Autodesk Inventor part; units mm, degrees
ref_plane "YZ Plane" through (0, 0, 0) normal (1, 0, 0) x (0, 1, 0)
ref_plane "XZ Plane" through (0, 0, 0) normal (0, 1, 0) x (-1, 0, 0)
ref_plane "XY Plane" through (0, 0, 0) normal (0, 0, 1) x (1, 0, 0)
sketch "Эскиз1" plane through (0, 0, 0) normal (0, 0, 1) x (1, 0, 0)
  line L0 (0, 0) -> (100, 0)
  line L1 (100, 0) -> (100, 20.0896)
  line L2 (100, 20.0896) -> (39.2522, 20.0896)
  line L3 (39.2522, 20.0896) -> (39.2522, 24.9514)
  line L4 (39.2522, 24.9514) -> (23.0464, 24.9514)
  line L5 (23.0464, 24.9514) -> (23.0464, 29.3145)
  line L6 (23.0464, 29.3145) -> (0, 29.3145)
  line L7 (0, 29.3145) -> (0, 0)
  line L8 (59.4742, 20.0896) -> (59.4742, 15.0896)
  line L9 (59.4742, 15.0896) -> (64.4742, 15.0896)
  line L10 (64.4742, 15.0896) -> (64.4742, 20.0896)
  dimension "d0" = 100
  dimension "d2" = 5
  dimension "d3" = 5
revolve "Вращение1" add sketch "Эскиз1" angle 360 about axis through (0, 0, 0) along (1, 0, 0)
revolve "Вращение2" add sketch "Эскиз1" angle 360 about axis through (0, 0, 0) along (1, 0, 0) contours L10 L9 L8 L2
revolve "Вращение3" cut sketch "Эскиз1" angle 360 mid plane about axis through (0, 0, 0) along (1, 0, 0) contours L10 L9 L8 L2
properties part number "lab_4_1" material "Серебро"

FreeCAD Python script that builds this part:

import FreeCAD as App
import Part
import Sketcher

V = App.Vector


def add_polygon(sketch, points):
    """Adds a closed chain of lines whose ends are joined by coincident constraints."""
    first, n = sketch.GeometryCount, len(points)
    for a, b in zip(points, points[1:] + points[:1]):
        sketch.addGeometry(Part.LineSegment(App.Vector(*a, 0), App.Vector(*b, 0)), False)
    for i in range(n):
        sketch.addConstraint(Sketcher.Constraint("Coincident", first + i, 2, first + (i + 1) % n, 1))

doc = App.newDocument("Part")
body = doc.addObject("PartDesign::Body", "Body")

sketch1 = doc.addObject("Sketcher::SketchObject", "Sketch")
body.addObject(sketch1)
sketch1.AttachmentSupport = (doc.XY_Plane, [""])
sketch1.MapMode = "FlatFace"
add_polygon(sketch1, [(0, 29.3), (0, 0), (100, 0), (100, 20.1), (39.3, 20.1), (39.3, 25), (23, 25), (23, 29.3)])
sketch1.addConstraint([
    Sketcher.Constraint("Vertical", 0),
    Sketcher.Constraint("Horizontal", 1),
    Sketcher.Constraint("Vertical", 2),
    Sketcher.Constraint("Horizontal", 3),
    Sketcher.Constraint("Vertical", 4),
    Sketcher.Constraint("Horizontal", 5),
    Sketcher.Constraint("Vertical", 6),
    Sketcher.Constraint("Horizontal", 7),
    Sketcher.Constraint("Coincident", 0, 2, -1, 1),
    Sketcher.Constraint("DistanceX", 1, 1, 1, 2, 100.0),
    Sketcher.Constraint("DistanceY", 6, 1, 6, 2, 4.363),
    Sketcher.Constraint("DistanceX", 3, 2, 3, 1, 60.7478),
    Sketcher.Constraint("DistanceX", 5, 2, 5, 1, 16.2058),
    Sketcher.Constraint("DistanceY", 0, 2, 0, 1, 29.3145),
    Sketcher.Constraint("DistanceY", 2, 1, 2, 2, 20.0896),
])
revolution = doc.addObject("PartDesign::Revolution", "Revolution")
body.addObject(revolution)
revolution.Profile = sketch1
revolution.ReferenceAxis = (sketch1, ["H_Axis"])
revolution.Angle = 360

sketch2 = doc.addObject("Sketcher::SketchObject", "Sketch001")
body.addObject(sketch2)
sketch2.AttachmentSupport = (doc.XY_Plane, [""])
sketch2.MapMode = "FlatFace"
add_polygon(sketch2, [(64.5, 15.1), (64.5, 20.1), (59.5, 20.1), (59.5, 15.1)])
sketch2.addConstraint([
    Sketcher.Constraint("Vertical", 0),
    Sketcher.Constraint("Horizontal", 1),
    Sketcher.Constraint("Vertical", 2),
    Sketcher.Constraint("Horizontal", 3),
    Sketcher.Constraint("Equal", 3, 0),
    Sketcher.Constraint("DistanceX", 1, 2, 1, 1, 5.0),
    Sketcher.Constraint("DistanceX", -1, 1, 0, 2, 64.4742),
    Sketcher.Constraint("DistanceY", -1, 1, 0, 2, 20.0896),
])
revolution2 = doc.addObject("PartDesign::Revolution", "Revolution001")
body.addObject(revolution2)
revolution2.Profile = sketch2
revolution2.ReferenceAxis = (sketch2, ["H_Axis"])
revolution2.Angle = 360

sketch3 = doc.addObject("Sketcher::SketchObject", "Sketch002")
body.addObject(sketch3)
sketch3.AttachmentSupport = (doc.XY_Plane, [""])
sketch3.MapMode = "FlatFace"
add_polygon(sketch3, [(64.5, 15.1), (64.5, 20.1), (59.5, 20.1), (59.5, 15.1)])
sketch3.addConstraint([
    Sketcher.Constraint("Vertical", 0),
    Sketcher.Constraint("Horizontal", 1),
    Sketcher.Constraint("Vertical", 2),
    Sketcher.Constraint("Horizontal", 3),
    Sketcher.Constraint("Equal", 3, 0),
    Sketcher.Constraint("DistanceX", 1, 2, 1, 1, 5.0),
    Sketcher.Constraint("DistanceX", -1, 1, 0, 2, 64.4742),
    Sketcher.Constraint("DistanceY", -1, 1, 0, 2, 20.0896),
])
groove = doc.addObject("PartDesign::Groove", "Groove")
body.addObject(groove)
groove.Profile = sketch3
groove.ReferenceAxis = (sketch3, ["H_Axis"])
groove.Angle = 360

doc.recompute()
